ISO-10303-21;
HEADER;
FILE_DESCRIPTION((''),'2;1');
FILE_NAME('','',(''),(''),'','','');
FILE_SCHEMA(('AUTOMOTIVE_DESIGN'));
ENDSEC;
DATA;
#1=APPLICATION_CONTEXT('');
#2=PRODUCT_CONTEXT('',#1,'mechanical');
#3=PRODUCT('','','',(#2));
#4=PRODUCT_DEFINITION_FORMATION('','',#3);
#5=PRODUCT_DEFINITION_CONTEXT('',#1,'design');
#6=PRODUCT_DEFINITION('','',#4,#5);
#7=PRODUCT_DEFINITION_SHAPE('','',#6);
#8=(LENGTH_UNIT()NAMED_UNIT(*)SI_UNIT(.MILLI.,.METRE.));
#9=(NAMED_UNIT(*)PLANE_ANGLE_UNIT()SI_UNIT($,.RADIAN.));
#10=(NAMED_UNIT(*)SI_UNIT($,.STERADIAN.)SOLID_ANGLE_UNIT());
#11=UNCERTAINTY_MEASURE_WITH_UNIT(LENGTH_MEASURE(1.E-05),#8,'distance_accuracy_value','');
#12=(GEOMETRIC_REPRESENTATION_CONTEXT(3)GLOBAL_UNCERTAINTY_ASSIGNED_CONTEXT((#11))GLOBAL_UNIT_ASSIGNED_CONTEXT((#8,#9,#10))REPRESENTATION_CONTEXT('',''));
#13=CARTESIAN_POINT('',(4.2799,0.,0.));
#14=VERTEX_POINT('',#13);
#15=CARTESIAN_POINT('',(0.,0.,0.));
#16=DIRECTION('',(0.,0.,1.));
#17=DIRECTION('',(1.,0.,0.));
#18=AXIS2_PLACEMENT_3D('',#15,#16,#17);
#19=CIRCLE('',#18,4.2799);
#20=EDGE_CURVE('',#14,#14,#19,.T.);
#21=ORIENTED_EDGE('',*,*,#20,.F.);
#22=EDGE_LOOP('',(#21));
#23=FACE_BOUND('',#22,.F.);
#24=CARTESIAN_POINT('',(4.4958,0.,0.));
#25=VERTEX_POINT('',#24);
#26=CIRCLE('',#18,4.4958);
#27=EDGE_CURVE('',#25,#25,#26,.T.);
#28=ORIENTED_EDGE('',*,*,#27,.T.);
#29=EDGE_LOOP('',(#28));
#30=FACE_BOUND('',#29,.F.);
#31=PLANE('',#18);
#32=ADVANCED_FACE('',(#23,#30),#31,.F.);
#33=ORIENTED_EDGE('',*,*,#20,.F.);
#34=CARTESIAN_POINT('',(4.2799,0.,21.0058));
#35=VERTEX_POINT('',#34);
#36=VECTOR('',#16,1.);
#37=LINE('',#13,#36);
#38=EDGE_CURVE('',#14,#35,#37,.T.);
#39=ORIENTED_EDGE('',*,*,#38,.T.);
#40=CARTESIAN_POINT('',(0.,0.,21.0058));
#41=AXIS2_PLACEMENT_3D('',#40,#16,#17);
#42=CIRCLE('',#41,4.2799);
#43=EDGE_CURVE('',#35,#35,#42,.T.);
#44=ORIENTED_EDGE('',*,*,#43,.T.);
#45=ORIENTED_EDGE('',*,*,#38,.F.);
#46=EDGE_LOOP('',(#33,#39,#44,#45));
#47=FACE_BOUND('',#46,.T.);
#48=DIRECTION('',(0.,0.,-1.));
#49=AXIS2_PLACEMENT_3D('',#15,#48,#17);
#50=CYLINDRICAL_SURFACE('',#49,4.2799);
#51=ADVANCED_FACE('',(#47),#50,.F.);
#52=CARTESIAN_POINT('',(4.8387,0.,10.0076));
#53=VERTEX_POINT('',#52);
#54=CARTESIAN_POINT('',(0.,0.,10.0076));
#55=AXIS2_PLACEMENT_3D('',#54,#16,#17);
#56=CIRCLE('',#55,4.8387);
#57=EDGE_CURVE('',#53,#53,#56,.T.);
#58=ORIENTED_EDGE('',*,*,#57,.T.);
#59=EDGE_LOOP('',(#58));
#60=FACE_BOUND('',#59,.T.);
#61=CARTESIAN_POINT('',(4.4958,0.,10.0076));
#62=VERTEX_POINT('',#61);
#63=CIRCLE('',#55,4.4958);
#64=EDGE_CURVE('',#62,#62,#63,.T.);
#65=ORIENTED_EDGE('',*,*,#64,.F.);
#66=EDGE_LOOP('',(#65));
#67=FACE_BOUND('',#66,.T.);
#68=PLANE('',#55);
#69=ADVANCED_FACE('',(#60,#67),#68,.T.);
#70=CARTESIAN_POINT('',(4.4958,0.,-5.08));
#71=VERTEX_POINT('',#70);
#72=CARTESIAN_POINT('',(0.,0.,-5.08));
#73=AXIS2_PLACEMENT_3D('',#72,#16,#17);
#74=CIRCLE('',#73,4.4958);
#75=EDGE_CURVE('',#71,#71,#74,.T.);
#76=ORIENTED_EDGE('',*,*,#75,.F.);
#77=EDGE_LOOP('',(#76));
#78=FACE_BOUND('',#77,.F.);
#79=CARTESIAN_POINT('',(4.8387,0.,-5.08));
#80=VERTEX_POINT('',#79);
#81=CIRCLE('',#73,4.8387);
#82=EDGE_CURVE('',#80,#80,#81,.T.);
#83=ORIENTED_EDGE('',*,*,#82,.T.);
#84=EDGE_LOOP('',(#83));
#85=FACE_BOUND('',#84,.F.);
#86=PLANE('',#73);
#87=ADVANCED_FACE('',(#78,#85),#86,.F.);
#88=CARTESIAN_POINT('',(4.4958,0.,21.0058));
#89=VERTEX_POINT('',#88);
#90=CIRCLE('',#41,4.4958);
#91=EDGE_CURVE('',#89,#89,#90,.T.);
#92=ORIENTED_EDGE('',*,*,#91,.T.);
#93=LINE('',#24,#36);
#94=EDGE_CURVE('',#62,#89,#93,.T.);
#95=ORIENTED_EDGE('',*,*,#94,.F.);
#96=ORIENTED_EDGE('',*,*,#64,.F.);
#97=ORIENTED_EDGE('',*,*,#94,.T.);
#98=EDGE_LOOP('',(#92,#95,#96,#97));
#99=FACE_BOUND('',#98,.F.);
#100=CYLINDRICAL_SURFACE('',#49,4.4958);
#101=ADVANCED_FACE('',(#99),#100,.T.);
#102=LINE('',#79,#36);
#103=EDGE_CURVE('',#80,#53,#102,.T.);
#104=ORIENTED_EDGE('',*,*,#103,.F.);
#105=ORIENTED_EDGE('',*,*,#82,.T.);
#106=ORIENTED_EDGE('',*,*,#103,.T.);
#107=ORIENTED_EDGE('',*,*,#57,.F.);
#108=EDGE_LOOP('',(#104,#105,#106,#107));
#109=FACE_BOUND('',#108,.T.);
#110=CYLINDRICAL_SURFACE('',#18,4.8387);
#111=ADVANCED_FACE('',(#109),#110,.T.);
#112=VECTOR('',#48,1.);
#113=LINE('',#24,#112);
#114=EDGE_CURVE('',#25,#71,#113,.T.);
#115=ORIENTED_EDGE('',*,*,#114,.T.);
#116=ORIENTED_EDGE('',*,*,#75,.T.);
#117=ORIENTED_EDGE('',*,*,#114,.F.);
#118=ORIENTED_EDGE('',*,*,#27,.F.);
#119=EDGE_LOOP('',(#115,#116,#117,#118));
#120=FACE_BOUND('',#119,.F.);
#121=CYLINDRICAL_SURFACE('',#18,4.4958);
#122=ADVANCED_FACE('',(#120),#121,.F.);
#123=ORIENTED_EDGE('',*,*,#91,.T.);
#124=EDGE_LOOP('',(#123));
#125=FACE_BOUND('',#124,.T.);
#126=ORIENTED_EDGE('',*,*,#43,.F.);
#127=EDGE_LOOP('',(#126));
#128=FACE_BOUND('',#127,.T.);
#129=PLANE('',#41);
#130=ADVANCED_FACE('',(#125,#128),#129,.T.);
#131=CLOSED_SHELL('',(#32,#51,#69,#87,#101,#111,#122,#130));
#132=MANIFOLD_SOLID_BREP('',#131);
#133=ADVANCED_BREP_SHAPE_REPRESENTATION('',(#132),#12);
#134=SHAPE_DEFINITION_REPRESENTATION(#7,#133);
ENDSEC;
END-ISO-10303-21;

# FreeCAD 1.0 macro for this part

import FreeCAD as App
import Part
import Sketcher
Q = App.Units.Quantity

doc = App.newDocument("Part")
body = doc.addObject("PartDesign::Body", "Body")

# Sketch on XY plane
sketch1 = body.newObject("Sketcher::SketchObject", "Sketch")
sketch1.AttachmentSupport = (doc.getObject("XY_Plane"), [""])
sketch1.MapMode = "FlatFace"
sketch1.addGeometry([
    Part.Circle(App.Vector(0, 0, 0), App.Vector(0, 0, 1), 4.5),
    Part.Circle(App.Vector(0, 0, 0), App.Vector(0, 0, 1), 4.3),
], False)
sketch1.addConstraint([
    Sketcher.Constraint("Coincident", 0, 3, -1, 1),
    Sketcher.Constraint("Coincident", 1, 3, -1, 1),
    Sketcher.Constraint("Diameter", 0, Q("0.354 in")),
    Sketcher.Constraint("Diameter", 1, Q("0.337 in")),
])
pad1 = body.newObject("PartDesign::Pad", "Pad")
pad1.Profile = sketch1
pad1.Length = Q("0.827 in")

# Sketch on XY plane
sketch2 = body.newObject("Sketcher::SketchObject", "Sketch001")
sketch2.AttachmentSupport = (doc.getObject("XY_Plane"), [""])
sketch2.MapMode = "FlatFace"
sketch2.addGeometry([
    Part.Circle(App.Vector(0, 0, 0), App.Vector(0, 0, 1), 4.8),
    Part.Circle(App.Vector(0, 0, 0), App.Vector(0, 0, 1), 4.5),
], False)
sketch2.addConstraint([
    Sketcher.Constraint("Coincident", 0, 3, -1, 1),
    Sketcher.Constraint("Coincident", 1, 3, -1, 1),
    Sketcher.Constraint("Diameter", 0, Q("0.381 in")),
    Sketcher.Constraint("Diameter", 1, Q("0.354 in")),
])
pad2 = body.newObject("PartDesign::Pad", "Pad001")
pad2.Profile = sketch2
pad2.Length = Q("0.394 in")

# Sketch on XY plane
sketch3 = body.newObject("Sketcher::SketchObject", "Sketch002")
sketch3.AttachmentSupport = (doc.getObject("XY_Plane"), [""])
sketch3.MapMode = "FlatFace"
sketch3.addGeometry([
    Part.Circle(App.Vector(0, 0, 0), App.Vector(0, 0, 1), 4.8),
    Part.Circle(App.Vector(0, 0, 0), App.Vector(0, 0, 1), 4.5),
], False)
sketch3.addConstraint([
    Sketcher.Constraint("Coincident", 0, 3, -1, 1),
    Sketcher.Constraint("Coincident", 1, 3, -1, 1),
    Sketcher.Constraint("Diameter", 0, Q("0.381 in")),
    Sketcher.Constraint("Diameter", 1, Q("0.354 in")),
])
pad3 = body.newObject("PartDesign::Pad", "Pad002")
pad3.Profile = sketch3
pad3.Length = Q("0.2 in")
pad3.Reversed = True

doc.recompute()
